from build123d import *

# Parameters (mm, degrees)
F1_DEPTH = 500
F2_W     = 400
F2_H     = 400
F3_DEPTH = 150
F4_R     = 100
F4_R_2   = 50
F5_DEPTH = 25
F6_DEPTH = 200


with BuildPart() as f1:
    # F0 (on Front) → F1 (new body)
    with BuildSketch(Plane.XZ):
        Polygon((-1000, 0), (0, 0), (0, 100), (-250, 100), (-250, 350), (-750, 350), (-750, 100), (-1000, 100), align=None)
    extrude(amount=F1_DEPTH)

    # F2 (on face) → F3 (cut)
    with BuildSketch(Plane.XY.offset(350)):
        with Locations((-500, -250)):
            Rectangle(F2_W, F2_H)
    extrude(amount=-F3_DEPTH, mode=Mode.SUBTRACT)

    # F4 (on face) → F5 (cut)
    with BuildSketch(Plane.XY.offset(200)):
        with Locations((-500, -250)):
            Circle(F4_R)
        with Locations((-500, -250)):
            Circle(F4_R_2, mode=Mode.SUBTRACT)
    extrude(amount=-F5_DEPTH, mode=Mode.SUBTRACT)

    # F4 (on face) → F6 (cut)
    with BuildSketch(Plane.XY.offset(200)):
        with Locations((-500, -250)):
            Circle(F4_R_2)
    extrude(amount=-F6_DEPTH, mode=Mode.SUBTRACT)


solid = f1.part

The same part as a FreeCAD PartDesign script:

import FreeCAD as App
import Part
import Sketcher


def add_polygon(sketch, points):
    """Adds a closed chain of lines whose ends are joined by coincident constraints."""
    first, n = sketch.GeometryCount, len(points)
    for a, b in zip(points, points[1:] + points[:1]):
        sketch.addGeometry(Part.LineSegment(App.Vector(*a, 0), App.Vector(*b, 0)), False)
    for i in range(n):
        sketch.addConstraint(Sketcher.Constraint("Coincident", first + i, 2, first + (i + 1) % n, 1))

doc = App.newDocument("Part")
body = doc.addObject("PartDesign::Body", "Body")

sketch1 = doc.addObject("Sketcher::SketchObject", "Sketch")
body.addObject(sketch1)
sketch1.AttachmentSupport = (doc.XZ_Plane, [""])
sketch1.MapMode = "FlatFace"
add_polygon(sketch1, [(-1000, 0), (0, 0), (0, 100), (-250, 100), (-250, 350), (-750, 350), (-750, 100), (-1000, 100)])
sketch1.addConstraint([
    Sketcher.Constraint("Horizontal", 0),
    Sketcher.Constraint("Vertical", 1),
    Sketcher.Constraint("Horizontal", 2),
    Sketcher.Constraint("Vertical", 3),
    Sketcher.Constraint("Horizontal", 4),
    Sketcher.Constraint("Vertical", 5),
    Sketcher.Constraint("Horizontal", 6),
    Sketcher.Constraint("Vertical", 7),
    Sketcher.Constraint("Coincident", 0, 2, -1, 1),
    Sketcher.Constraint("Horizontal", 2, 2, 5, 2),
    Sketcher.Constraint("Equal", 2, 6),
    Sketcher.Constraint("Equal", 6, 3),
    Sketcher.Constraint("DistanceX", 0, 1, 0, 2, 1000.0),
    Sketcher.Constraint("DistanceX", 2, 2, 2, 1, 250.0),
    Sketcher.Constraint("DistanceY", 1, 1, 1, 2, 100.0),
])
pad1 = doc.addObject("PartDesign::Pad", "Pad")
body.addObject(pad1)
pad1.Profile = sketch1
pad1.Length = 500

sketch2 = doc.addObject("Sketcher::SketchObject", "Sketch001")
body.addObject(sketch2)
sketch2.AttachmentSupport = (doc.XY_Plane, [""])
sketch2.MapMode = "FlatFace"
sketch2.AttachmentOffset = App.Placement(App.Vector(0, 0, 350), App.Rotation())
add_polygon(sketch2, [(-700, -50), (-700, -450), (-300, -450), (-300, -50)])
sketch2.addConstraint([
    Sketcher.Constraint("Vertical", 0),
    Sketcher.Constraint("Horizontal", 1),
    Sketcher.Constraint("Vertical", 2),
    Sketcher.Constraint("Horizontal", 3),
    Sketcher.Constraint("Equal", 3, 0),
    Sketcher.Constraint("DistanceX", 1, 1, 1, 2, 400.0),
    Sketcher.Constraint("DistanceX", 0, 2, -1, 1, 700.0),
    Sketcher.Constraint("DistanceY", 0, 2, -1, 1, 450.0),
])
pocket1 = doc.addObject("PartDesign::Pocket", "Pocket")
body.addObject(pocket1)
pocket1.Profile = sketch2
pocket1.Length = 150

sketch3 = doc.addObject("Sketcher::SketchObject", "Sketch002")
body.addObject(sketch3)
sketch3.AttachmentSupport = (doc.XY_Plane, [""])
sketch3.MapMode = "FlatFace"
sketch3.AttachmentOffset = App.Placement(App.Vector(0, 0, 200), App.Rotation())
sketch3.addGeometry([
    Part.Circle(App.Vector(-500, -250, 0), App.Vector(0, 0, 1), 100),
    Part.Circle(App.Vector(-500, -250, 0), App.Vector(0, 0, 1), 50),
], False)
sketch3.addConstraint([
    Sketcher.Constraint("Coincident", 1, 3, 0, 3),
    Sketcher.Constraint("Diameter", 0, 200.0),
    Sketcher.Constraint("Diameter", 1, 100.0),
    Sketcher.Constraint("DistanceX", 0, 3, -1, 1, 500.0),
    Sketcher.Constraint("DistanceY", 0, 3, -1, 1, 250.0),
])
pocket2 = doc.addObject("PartDesign::Pocket", "Pocket001")
body.addObject(pocket2)
pocket2.Profile = sketch3
pocket2.Length = 25

sketch4 = doc.addObject("Sketcher::SketchObject", "Sketch003")
body.addObject(sketch4)
sketch4.AttachmentSupport = (doc.XY_Plane, [""])
sketch4.MapMode = "FlatFace"
sketch4.AttachmentOffset = App.Placement(App.Vector(0, 0, 200), App.Rotation())
sketch4.addGeometry(Part.Circle(App.Vector(-500, -250, 0), App.Vector(0, 0, 1), 50), False)
sketch4.addConstraint([
    Sketcher.Constraint("Diameter", 0, 100.0),
    Sketcher.Constraint("DistanceX", 0, 3, -1, 1, 500.0),
    Sketcher.Constraint("DistanceY", 0, 3, -1, 1, 250.0),
])
pocket3 = doc.addObject("PartDesign::Pocket", "Pocket002")
body.addObject(pocket3)
pocket3.Profile = sketch4
pocket3.Length = 200

doc.recompute()
